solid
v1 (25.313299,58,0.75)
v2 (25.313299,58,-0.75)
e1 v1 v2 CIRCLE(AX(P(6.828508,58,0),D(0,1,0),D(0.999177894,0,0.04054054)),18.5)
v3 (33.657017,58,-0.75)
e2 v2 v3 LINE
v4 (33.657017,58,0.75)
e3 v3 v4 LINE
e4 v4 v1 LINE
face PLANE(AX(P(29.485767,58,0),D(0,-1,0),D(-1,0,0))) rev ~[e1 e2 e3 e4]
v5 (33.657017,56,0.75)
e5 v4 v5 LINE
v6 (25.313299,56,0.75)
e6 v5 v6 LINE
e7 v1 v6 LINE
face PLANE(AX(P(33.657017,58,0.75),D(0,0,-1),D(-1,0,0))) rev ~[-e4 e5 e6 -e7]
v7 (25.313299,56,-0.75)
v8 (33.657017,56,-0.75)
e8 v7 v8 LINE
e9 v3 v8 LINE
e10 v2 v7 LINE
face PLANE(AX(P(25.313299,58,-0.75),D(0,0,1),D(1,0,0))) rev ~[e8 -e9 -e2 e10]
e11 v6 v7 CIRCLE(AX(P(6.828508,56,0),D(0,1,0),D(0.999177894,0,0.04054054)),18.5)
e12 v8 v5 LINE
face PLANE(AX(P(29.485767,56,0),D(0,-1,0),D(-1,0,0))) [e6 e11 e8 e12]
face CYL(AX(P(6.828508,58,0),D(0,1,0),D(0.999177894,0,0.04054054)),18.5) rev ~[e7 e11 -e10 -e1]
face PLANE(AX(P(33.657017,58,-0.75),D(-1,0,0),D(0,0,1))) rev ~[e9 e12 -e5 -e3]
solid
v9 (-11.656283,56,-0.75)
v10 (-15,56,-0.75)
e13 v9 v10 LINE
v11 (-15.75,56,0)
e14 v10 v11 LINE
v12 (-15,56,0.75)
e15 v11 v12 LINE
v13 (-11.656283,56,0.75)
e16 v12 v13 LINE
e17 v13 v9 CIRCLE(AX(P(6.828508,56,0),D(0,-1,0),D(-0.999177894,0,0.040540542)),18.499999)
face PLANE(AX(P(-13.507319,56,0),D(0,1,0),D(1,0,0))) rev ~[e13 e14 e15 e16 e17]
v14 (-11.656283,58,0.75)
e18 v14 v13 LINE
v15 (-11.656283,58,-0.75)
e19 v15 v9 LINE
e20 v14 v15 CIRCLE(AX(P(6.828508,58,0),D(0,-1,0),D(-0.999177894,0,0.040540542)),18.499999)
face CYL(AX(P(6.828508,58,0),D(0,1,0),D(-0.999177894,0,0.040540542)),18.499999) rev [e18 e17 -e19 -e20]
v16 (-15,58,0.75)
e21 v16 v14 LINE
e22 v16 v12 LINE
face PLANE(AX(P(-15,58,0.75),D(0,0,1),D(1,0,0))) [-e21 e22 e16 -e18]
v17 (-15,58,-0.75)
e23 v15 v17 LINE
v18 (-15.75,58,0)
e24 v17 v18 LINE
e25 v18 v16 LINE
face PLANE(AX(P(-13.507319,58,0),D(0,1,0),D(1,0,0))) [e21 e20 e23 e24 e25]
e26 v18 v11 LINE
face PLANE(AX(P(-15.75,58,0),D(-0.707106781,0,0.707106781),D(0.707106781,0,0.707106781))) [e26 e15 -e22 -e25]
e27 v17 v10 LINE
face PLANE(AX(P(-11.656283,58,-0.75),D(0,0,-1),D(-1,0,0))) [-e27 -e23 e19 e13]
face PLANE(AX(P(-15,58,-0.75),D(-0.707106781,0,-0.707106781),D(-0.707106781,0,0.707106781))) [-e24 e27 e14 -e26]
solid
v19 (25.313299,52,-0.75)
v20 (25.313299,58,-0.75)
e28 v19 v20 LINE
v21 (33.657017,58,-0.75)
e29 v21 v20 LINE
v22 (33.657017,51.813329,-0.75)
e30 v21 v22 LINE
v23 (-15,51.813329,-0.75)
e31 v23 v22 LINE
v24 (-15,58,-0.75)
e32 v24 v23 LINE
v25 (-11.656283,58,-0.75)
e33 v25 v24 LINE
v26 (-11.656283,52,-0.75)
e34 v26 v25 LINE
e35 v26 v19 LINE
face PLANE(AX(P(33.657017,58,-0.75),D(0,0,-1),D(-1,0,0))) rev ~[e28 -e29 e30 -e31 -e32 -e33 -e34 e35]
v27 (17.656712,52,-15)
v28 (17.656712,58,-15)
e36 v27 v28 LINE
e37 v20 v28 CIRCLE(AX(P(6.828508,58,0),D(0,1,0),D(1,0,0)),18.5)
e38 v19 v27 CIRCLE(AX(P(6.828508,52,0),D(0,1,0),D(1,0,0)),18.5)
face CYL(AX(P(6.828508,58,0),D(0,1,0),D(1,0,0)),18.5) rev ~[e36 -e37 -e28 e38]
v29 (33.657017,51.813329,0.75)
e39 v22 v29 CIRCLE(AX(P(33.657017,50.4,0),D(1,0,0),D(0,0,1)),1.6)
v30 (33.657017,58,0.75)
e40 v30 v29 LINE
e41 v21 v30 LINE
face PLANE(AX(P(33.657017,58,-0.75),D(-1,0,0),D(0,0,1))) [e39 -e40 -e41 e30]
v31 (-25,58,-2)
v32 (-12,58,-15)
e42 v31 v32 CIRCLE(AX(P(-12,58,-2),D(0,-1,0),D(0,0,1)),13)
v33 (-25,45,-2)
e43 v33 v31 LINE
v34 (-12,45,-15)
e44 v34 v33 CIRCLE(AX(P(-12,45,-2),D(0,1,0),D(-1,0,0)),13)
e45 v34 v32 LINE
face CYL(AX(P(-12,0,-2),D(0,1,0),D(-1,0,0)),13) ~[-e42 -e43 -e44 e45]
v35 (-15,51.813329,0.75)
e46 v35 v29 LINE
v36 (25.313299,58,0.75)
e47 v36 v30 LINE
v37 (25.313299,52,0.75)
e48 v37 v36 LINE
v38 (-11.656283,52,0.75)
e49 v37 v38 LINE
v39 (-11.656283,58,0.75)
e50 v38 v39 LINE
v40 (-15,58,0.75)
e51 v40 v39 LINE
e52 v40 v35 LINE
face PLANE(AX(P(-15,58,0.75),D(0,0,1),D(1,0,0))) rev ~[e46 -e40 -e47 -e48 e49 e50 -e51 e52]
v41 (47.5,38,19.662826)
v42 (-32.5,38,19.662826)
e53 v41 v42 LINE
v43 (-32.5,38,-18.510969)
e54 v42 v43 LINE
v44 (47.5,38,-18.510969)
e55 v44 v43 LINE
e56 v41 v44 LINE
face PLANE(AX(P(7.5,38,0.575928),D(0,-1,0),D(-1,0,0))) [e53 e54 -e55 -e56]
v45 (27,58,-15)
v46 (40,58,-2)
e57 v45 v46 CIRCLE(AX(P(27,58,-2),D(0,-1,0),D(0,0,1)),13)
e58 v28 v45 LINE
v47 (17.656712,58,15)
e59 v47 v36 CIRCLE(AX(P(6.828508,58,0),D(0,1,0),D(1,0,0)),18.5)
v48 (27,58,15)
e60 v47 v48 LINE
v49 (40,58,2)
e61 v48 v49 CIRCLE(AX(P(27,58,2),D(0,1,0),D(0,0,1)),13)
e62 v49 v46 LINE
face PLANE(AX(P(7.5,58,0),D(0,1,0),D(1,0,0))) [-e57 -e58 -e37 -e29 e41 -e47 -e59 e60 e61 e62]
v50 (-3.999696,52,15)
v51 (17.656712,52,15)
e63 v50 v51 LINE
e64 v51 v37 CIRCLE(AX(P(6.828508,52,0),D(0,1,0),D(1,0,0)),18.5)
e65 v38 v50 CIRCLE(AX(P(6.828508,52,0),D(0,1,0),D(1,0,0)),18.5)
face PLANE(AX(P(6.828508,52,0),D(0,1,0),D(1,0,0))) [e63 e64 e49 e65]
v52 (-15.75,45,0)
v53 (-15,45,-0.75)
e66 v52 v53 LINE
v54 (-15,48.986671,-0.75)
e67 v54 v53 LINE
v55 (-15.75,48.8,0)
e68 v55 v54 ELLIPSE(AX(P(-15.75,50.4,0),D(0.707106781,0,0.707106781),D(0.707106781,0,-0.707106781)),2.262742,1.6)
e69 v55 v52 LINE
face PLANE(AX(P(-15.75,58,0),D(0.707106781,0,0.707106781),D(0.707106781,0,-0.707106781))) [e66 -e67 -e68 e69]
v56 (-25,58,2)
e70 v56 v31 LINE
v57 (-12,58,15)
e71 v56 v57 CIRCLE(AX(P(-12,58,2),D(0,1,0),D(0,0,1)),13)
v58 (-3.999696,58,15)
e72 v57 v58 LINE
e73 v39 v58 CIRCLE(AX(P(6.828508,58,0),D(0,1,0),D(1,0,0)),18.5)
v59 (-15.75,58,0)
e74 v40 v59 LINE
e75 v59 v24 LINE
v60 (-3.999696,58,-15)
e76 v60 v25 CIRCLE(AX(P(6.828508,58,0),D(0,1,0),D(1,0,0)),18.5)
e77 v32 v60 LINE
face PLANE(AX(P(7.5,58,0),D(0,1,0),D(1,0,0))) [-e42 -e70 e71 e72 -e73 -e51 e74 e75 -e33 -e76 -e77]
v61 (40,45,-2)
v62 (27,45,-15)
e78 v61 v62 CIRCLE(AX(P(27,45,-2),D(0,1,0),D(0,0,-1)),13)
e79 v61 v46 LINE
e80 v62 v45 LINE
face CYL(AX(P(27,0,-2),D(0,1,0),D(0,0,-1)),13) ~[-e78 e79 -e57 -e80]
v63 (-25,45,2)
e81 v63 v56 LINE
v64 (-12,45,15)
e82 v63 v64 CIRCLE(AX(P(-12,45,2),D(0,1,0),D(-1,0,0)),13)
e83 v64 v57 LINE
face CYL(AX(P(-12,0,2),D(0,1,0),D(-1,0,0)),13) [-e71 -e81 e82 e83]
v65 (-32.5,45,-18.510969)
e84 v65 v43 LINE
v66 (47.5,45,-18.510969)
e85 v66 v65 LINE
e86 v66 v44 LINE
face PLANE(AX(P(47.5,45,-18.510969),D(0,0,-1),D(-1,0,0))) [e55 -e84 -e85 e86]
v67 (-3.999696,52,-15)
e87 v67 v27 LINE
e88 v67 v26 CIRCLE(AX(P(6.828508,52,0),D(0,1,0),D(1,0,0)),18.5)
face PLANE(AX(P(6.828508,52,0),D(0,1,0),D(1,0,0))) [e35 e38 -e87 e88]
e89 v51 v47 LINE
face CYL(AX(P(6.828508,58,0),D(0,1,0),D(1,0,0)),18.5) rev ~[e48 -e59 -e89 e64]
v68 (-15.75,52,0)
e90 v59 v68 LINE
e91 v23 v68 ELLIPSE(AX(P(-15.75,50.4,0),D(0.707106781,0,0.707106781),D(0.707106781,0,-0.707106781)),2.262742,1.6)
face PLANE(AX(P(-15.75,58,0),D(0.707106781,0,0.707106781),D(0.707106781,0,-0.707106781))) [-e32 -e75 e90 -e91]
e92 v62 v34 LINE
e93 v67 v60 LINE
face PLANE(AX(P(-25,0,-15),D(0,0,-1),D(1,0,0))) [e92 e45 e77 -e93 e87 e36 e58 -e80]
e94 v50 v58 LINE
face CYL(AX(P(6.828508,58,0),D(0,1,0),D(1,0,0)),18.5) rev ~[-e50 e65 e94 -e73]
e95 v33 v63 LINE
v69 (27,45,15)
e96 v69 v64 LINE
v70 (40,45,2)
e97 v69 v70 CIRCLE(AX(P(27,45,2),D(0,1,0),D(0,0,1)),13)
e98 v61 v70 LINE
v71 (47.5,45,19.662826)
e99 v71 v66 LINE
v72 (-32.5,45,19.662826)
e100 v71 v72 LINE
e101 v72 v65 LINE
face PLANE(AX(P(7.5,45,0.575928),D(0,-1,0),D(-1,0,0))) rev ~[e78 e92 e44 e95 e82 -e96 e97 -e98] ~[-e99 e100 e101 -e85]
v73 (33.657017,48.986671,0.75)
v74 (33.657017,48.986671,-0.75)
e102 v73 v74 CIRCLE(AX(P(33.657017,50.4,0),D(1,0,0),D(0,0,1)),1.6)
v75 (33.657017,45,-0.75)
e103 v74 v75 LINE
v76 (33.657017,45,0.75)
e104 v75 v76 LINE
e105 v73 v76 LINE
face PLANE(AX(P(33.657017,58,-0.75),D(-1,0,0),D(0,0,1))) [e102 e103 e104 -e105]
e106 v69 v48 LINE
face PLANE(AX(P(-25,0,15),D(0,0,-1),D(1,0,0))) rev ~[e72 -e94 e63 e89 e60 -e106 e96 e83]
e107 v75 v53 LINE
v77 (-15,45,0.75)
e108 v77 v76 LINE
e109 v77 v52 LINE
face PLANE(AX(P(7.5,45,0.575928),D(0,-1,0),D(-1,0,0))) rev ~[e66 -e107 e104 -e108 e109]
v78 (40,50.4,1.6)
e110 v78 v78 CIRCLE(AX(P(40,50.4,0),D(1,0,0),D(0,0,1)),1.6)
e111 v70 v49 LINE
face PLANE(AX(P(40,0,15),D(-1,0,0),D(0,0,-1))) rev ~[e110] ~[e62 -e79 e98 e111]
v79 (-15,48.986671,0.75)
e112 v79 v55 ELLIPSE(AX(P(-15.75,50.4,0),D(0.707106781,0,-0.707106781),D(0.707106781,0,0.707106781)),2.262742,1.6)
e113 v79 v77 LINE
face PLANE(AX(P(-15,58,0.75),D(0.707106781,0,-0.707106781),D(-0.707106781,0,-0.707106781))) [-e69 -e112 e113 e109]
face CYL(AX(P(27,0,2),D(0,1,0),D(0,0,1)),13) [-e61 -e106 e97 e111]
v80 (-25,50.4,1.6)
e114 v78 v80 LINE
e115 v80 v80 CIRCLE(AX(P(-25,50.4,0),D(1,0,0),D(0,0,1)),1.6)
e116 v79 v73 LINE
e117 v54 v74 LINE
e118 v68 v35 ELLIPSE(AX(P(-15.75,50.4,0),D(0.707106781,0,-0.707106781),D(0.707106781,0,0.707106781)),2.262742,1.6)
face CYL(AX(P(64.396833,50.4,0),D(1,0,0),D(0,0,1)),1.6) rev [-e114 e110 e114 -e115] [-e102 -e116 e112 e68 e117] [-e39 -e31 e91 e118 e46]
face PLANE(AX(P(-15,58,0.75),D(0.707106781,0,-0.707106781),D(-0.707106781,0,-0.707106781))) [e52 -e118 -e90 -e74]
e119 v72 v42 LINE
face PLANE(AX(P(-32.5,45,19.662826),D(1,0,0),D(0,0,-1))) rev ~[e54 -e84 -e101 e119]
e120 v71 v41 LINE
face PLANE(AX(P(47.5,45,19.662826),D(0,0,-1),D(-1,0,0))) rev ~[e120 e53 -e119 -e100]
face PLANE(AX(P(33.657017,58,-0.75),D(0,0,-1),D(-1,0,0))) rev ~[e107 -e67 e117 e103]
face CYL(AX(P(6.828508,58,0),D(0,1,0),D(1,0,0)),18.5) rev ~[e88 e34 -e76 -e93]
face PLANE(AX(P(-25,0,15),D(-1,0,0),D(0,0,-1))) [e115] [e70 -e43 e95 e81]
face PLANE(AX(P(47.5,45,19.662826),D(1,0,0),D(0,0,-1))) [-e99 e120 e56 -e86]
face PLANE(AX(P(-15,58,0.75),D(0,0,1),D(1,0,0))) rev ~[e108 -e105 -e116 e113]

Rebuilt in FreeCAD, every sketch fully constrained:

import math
import FreeCAD as App
import Part
import Sketcher
from FreeCAD import Vector


def edges_at(feature, points):
    """Names of the edges that pass closest to the given points."""
    edges = feature.Shape.Edges
    near = lambda p: min(range(len(edges)), key=lambda i: edges[i].distToShape(Part.Vertex(*p))[0])
    return sorted({f"Edge{near(p) + 1}" for p in points})


def add_polygon(sketch, points):
    """Adds a closed chain of lines whose ends are joined by coincident constraints."""
    first, n = sketch.GeometryCount, len(points)
    for a, b in zip(points, points[1:] + points[:1]):
        sketch.addGeometry(Part.LineSegment(App.Vector(*a, 0), App.Vector(*b, 0)), False)
    for i in range(n):
        sketch.addConstraint(Sketcher.Constraint("Coincident", first + i, 2, first + (i + 1) % n, 1))

doc = App.newDocument("Part")
body = doc.addObject("PartDesign::Body", "Body")

# Sketch on XZ plane
sketch1 = body.newObject("Sketcher::SketchObject", "Sketch")
sketch1.AttachmentSupport = (doc.getObject("XZ_Plane"), [""])
sketch1.MapMode = "FlatFace"
add_polygon(sketch1, [(-25, -15), (-25, 15), (40, 15), (40, -15)])  # lines 0-3
sketch1.addConstraint([
    Sketcher.Constraint("Vertical", 0),
    Sketcher.Constraint("Horizontal", 1),
    Sketcher.Constraint("Vertical", 2),
    Sketcher.Constraint("Horizontal", 3),
    Sketcher.Constraint("DistanceX", 1, 1, 1, 2, 65.0),
    Sketcher.Constraint("DistanceY", 0, 1, 0, 2, 30.0),
    Sketcher.Constraint("DistanceX", 0, 2, -1, 1, 25.0),
    Sketcher.Constraint("DistanceY", -1, 1, 0, 2, 15.0),
])
pad1 = body.newObject("PartDesign::Pad", "Pad")
pad1.Profile = sketch1
pad1.Length = 58
pad1.Reversed = True

# Sketch on XZ plane
sketch2 = body.newObject("Sketcher::SketchObject", "Sketch001")
sketch2.AttachmentSupport = (doc.getObject("XZ_Plane"), [""])
sketch2.MapMode = "FlatFace"
sketch2.AttachmentOffset = App.Placement(Vector(0, 0, -58), App.Rotation())
add_polygon(sketch2, [(33.7, -0.8), (-15, -0.8), (-15.8, 0), (-15, 0.8), (33.7, 0.8)])  # lines 0-4
sketch2.addConstraint([
    Sketcher.Constraint("Horizontal", 0),
    Sketcher.Constraint("Horizontal", 3),
    Sketcher.Constraint("Vertical", 4),
    Sketcher.Constraint("Symmetric", 0, 2, 2, 2, -1),
    Sketcher.Constraint("PointOnObject", 1, 2, -1),
    Sketcher.Constraint("Perpendicular", 1, 2),
    Sketcher.Constraint("DistanceY", 4, 2, 4, 1, 1.5),
    Sketcher.Constraint("DistanceX", 0, 2, -1, 1, 15.0),
    Sketcher.Constraint("DistanceX", 0, 2, 0, 1, 48.657017),
])
pocket1 = body.newObject("PartDesign::Pocket", "Pocket")
pocket1.Profile = sketch2
pocket1.Length = 70
pocket1.Reversed = True

# Sketch on YZ plane
sketch3 = body.newObject("Sketcher::SketchObject", "Sketch002")
sketch3.AttachmentSupport = (doc.getObject("YZ_Plane"), [""])
sketch3.MapMode = "FlatFace"
sketch3.AttachmentOffset = App.Placement(Vector(0, 0, -25), App.Rotation())
sketch3.addGeometry(Part.Circle(Vector(50.4, 0, 0), Vector(0, 0, 1), 1.6), False)
sketch3.addConstraint([
    Sketcher.Constraint("PointOnObject", 0, 3, -1),
    Sketcher.Constraint("Diameter", 0, 3.2),
    Sketcher.Constraint("DistanceX", -1, 1, 0, 3, 50.4),
])
pocket2 = body.newObject("PartDesign::Pocket", "Pocket001")
pocket2.Profile = sketch3
pocket2.Type = "ThroughAll"
pocket2.Midplane = True
doc.recompute()

fillet = body.newObject("PartDesign::Fillet", "Fillet")
fillet.Base = (pocket2, edges_at(pocket2, [
    (40, 29, 15),
    (-25, 29, 15),
    (-25, 29, -15),
    (40, 29, -15),
]))
fillet.Radius = 13

# Sketch on XZ plane
sketch4 = body.newObject("Sketcher::SketchObject", "Sketch003")
sketch4.AttachmentSupport = (doc.getObject("XZ_Plane"), [""])
sketch4.MapMode = "FlatFace"
sketch4.AttachmentOffset = App.Placement(Vector(0, 0, 10), App.Rotation())
add_polygon(sketch4, [(42, -16), (42, 16), (-42, 16), (-42, -16)])  # lines 0-3
sketch4.addConstraint([
    Sketcher.Constraint("Vertical", 0),
    Sketcher.Constraint("Horizontal", 1),
    Sketcher.Constraint("Vertical", 2),
    Sketcher.Constraint("Horizontal", 3),
    Sketcher.Constraint("DistanceY", 0, 1, 0, 2, 31.698448),
    Sketcher.Constraint("DistanceX", 1, 2, 1, 1, 83.696096),
    Sketcher.Constraint("DistanceX", -1, 1, 0, 2, 41.905489),
    Sketcher.Constraint("DistanceY", -1, 1, 0, 2, 15.818745),
])
pocket3 = body.newObject("PartDesign::Pocket", "Pocket002")
pocket3.Profile = sketch4
pocket3.Length = 50

# Sketch on XZ plane
sketch5 = body.newObject("Sketcher::SketchObject", "Sketch004")
sketch5.AttachmentSupport = (doc.getObject("XZ_Plane"), [""])
sketch5.MapMode = "FlatFace"
sketch5.AttachmentOffset = App.Placement(Vector(0, 0, -40), App.Rotation())
add_polygon(sketch5, [(48, -19), (48, 20), (-32, 20), (-32, -19)])  # lines 0-3
sketch5.addConstraint([
    Sketcher.Constraint("Vertical", 0),
    Sketcher.Constraint("Horizontal", 1),
    Sketcher.Constraint("Vertical", 2),
    Sketcher.Constraint("Horizontal", 3),
    Sketcher.Constraint("DistanceX", 1, 2, 1, 1, 80.0),
    Sketcher.Constraint("DistanceX", -1, 1, 0, 2, 47.5),
    Sketcher.Constraint("DistanceY", 0, 1, 0, 2, 38.173795),
    Sketcher.Constraint("DistanceY", 2, 2, -1, 1, 18.510969),
])
pad2 = body.newObject("PartDesign::Pad", "Pad001")
pad2.Profile = sketch5
pad2.Type = "TwoLengths"
pad2.Length = 2
pad2.Length2 = 5

# Sketch on XZ plane
sketch6 = body.newObject("Sketcher::SketchObject", "Sketch005")
sketch6.AttachmentSupport = (doc.getObject("XZ_Plane"), [""])
sketch6.MapMode = "FlatFace"
sketch6.AttachmentOffset = App.Placement(Vector(0, 0, -58), App.Rotation())
sketch6.addGeometry(Part.Circle(Vector(7, 0, 0), Vector(0, 0, 1), 18), False)
sketch6.addConstraint([
    Sketcher.Constraint("PointOnObject", 0, 3, -1),
    Sketcher.Constraint("Diameter", 0, 37.0),
    Sketcher.Constraint("DistanceX", -1, 1, 0, 3, 6.828508),
])
pocket4 = body.newObject("PartDesign::Pocket", "Pocket003")
pocket4.Profile = sketch6
pocket4.Length = 6
pocket4.Reversed = True
body2 = doc.addObject("PartDesign::Body", "Body001")

# Sketch on XZ plane
sketch7 = body2.newObject("Sketcher::SketchObject", "Sketch006")
sketch7.AttachmentSupport = (doc.getObject("XZ_Plane001"), [""])
sketch7.MapMode = "FlatFace"
sketch7.AttachmentOffset = App.Placement(Vector(0, 0, -58), App.Rotation())
sketch7.addGeometry([
    Part.LineSegment(Vector(-11.7, -0.8, 0), Vector(-15, -0.8, 0)),  # 0
    Part.LineSegment(Vector(-15, -0.8, 0), Vector(-15.8, 0, 0)),  # 1
    Part.LineSegment(Vector(-15.8, 0, 0), Vector(-15, 0.8, 0)),  # 2
    Part.LineSegment(Vector(-15, 0.8, 0), Vector(-11.7, 0.8, 0)),  # 3
    Part.ArcOfCircle(Part.Circle(Vector(6.8, 0, 0), Vector(0, 0, 1), 18.5), math.radians(177.68), math.radians(182.32)),  # 4
], False)
sketch7.addConstraint([
    Sketcher.Constraint("Coincident", 0, 2, 1, 1),
    Sketcher.Constraint("Coincident", 1, 2, 2, 1),
    Sketcher.Constraint("Coincident", 2, 2, 3, 1),
    Sketcher.Constraint("Coincident", 3, 2, 4, 1),
    Sketcher.Constraint("Coincident", 4, 2, 0, 1),
    Sketcher.Constraint("Horizontal", 0),
    Sketcher.Constraint("Horizontal", 3),
    Sketcher.Constraint("Symmetric", 0, 2, 2, 2, -1),
    Sketcher.Constraint("PointOnObject", 4, 3, -1),
    Sketcher.Constraint("PointOnObject", 1, 2, -1),
    Sketcher.Constraint("Perpendicular", 1, 2),
    Sketcher.Constraint("Radius", 4, 18.499999),
    Sketcher.Constraint("DistanceX", 0, 2, -1, 1, 15.0),
    Sketcher.Constraint("DistanceY", 0, 2, 2, 2, 1.5),
    Sketcher.Constraint("DistanceX", 0, 2, 0, 1, 3.343717),
])
pad3 = body2.newObject("PartDesign::Pad", "Pad002")
pad3.Profile = sketch7
pad3.Length = 2
body3 = doc.addObject("PartDesign::Body", "Body002")

# Sketch on XZ plane
sketch8 = body3.newObject("Sketcher::SketchObject", "Sketch007")
sketch8.AttachmentSupport = (doc.getObject("XZ_Plane002"), [""])
sketch8.MapMode = "FlatFace"
sketch8.AttachmentOffset = App.Placement(Vector(0, 0, -58), App.Rotation())
sketch8.addGeometry([
    Part.LineSegment(Vector(33.7, -0.8, 0), Vector(25.3, -0.8, 0)),
    Part.ArcOfCircle(Part.Circle(Vector(6.8, 0, 0), Vector(0, 0, 1), 18.5), math.radians(-2.32), math.radians(2.32)),
    Part.LineSegment(Vector(25.3, 0.8, 0), Vector(33.7, 0.8, 0)),
    Part.LineSegment(Vector(33.7, 0.8, 0), Vector(33.7, -0.8, 0)),
], False)
sketch8.addConstraint([
    Sketcher.Constraint("Coincident", 0, 2, 1, 1),
    Sketcher.Constraint("Coincident", 1, 2, 2, 1),
    Sketcher.Constraint("Coincident", 2, 2, 3, 1),
    Sketcher.Constraint("Coincident", 3, 2, 0, 1),
    Sketcher.Constraint("Horizontal", 0),
    Sketcher.Constraint("Horizontal", 2),
    Sketcher.Constraint("Vertical", 3),
    Sketcher.Constraint("Symmetric", 0, 2, 1, 2, -1),
    Sketcher.Constraint("Radius", 1, 18.5),
    Sketcher.Constraint("DistanceY", 3, 2, 3, 1, 1.5),
    Sketcher.Constraint("DistanceX", -1, 1, 0, 2, 25.313299),
    Sketcher.Constraint("DistanceX", 0, 2, 0, 1, 8.343717),
])
pad4 = body3.newObject("PartDesign::Pad", "Pad003")
pad4.Profile = sketch8
pad4.Length = 2

doc.recompute()
